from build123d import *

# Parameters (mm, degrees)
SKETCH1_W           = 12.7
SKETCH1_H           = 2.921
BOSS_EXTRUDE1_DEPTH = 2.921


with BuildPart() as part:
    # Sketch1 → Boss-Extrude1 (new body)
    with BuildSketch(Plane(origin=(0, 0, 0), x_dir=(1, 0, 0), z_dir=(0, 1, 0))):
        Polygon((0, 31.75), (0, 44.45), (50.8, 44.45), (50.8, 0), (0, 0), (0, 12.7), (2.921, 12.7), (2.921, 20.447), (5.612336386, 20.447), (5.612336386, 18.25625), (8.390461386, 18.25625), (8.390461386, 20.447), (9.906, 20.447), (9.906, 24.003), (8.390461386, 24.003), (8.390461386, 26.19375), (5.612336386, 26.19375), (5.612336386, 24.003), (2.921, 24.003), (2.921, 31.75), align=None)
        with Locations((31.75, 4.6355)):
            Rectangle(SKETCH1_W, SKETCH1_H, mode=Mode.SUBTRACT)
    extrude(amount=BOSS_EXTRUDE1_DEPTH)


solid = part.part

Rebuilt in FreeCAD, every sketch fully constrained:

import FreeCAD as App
import Part
import Sketcher
Q = App.Units.Quantity

doc = App.newDocument("Part")
body = doc.addObject("PartDesign::Body", "Body")

# Sketch on XZ plane
sketch1 = body.newObject("Sketcher::SketchObject", "Sketch")
sketch1.AttachmentSupport = (doc.getObject("XZ_Plane"), [""])
sketch1.MapMode = "FlatFace"
sketch1.addGeometry(Part.LineSegment(App.Vector(0, -44.5, 0), App.Vector(0, -31.8, 0)), False)
sketch1.addGeometry(Part.LineSegment(App.Vector(0, -31.8, 0), App.Vector(2.9, -31.8, 0)), False)
sketch1.addGeometry(Part.LineSegment(App.Vector(2.9, -31.8, 0), App.Vector(2.9, -24, 0)), False)
sketch1.addGeometry(Part.LineSegment(App.Vector(2.9, -24, 0), App.Vector(5.6, -24, 0)), False)
sketch1.addGeometry(Part.LineSegment(App.Vector(5.6, -24, 0), App.Vector(5.6, -26.2, 0)), False)
sketch1.addGeometry(Part.LineSegment(App.Vector(5.6, -26.2, 0), App.Vector(8.4, -26.2, 0)), False)
sketch1.addGeometry(Part.LineSegment(App.Vector(8.4, -26.2, 0), App.Vector(8.4, -24, 0)), False)
sketch1.addGeometry(Part.LineSegment(App.Vector(8.4, -24, 0), App.Vector(9.9, -24, 0)), False)
sketch1.addGeometry(Part.LineSegment(App.Vector(9.9, -24, 0), App.Vector(9.9, -20.4, 0)), False)
sketch1.addGeometry(Part.LineSegment(App.Vector(9.9, -20.4, 0), App.Vector(8.4, -20.4, 0)), False)
sketch1.addGeometry(Part.LineSegment(App.Vector(8.4, -20.4, 0), App.Vector(8.4, -18.3, 0)), False)
sketch1.addGeometry(Part.LineSegment(App.Vector(8.4, -18.3, 0), App.Vector(5.6, -18.3, 0)), False)
sketch1.addGeometry(Part.LineSegment(App.Vector(5.6, -18.3, 0), App.Vector(5.6, -20.4, 0)), False)
sketch1.addGeometry(Part.LineSegment(App.Vector(5.6, -20.4, 0), App.Vector(2.9, -20.4, 0)), False)
sketch1.addGeometry(Part.LineSegment(App.Vector(2.9, -20.4, 0), App.Vector(2.9, -12.7, 0)), False)
sketch1.addGeometry(Part.LineSegment(App.Vector(2.9, -12.7, 0), App.Vector(0, -12.7, 0)), False)
sketch1.addGeometry(Part.LineSegment(App.Vector(0, -12.7, 0), App.Vector(0, 0, 0)), False)
sketch1.addGeometry(Part.LineSegment(App.Vector(0, 0, 0), App.Vector(50.8, 0, 0)), False)
sketch1.addGeometry(Part.LineSegment(App.Vector(50.8, 0, 0), App.Vector(50.8, -44.5, 0)), False)
sketch1.addGeometry(Part.LineSegment(App.Vector(50.8, -44.5, 0), App.Vector(0, -44.5, 0)), False)
sketch1.addGeometry(Part.LineSegment(App.Vector(25.4, -3.2, 0), App.Vector(25.4, -6.1, 0)), False)
sketch1.addGeometry(Part.LineSegment(App.Vector(25.4, -6.1, 0), App.Vector(38.1, -6.1, 0)), False)
sketch1.addGeometry(Part.LineSegment(App.Vector(38.1, -6.1, 0), App.Vector(38.1, -3.2, 0)), False)
sketch1.addGeometry(Part.LineSegment(App.Vector(38.1, -3.2, 0), App.Vector(25.4, -3.2, 0)), False)
sketch1.addConstraint(Sketcher.Constraint("Coincident", 0, 2, 1, 1))
sketch1.addConstraint(Sketcher.Constraint("Coincident", 1, 2, 2, 1))
sketch1.addConstraint(Sketcher.Constraint("Coincident", 2, 2, 3, 1))
sketch1.addConstraint(Sketcher.Constraint("Coincident", 3, 2, 4, 1))
sketch1.addConstraint(Sketcher.Constraint("Coincident", 4, 2, 5, 1))
sketch1.addConstraint(Sketcher.Constraint("Coincident", 5, 2, 6, 1))
sketch1.addConstraint(Sketcher.Constraint("Coincident", 6, 2, 7, 1))
sketch1.addConstraint(Sketcher.Constraint("Coincident", 7, 2, 8, 1))
sketch1.addConstraint(Sketcher.Constraint("Coincident", 8, 2, 9, 1))
sketch1.addConstraint(Sketcher.Constraint("Coincident", 9, 2, 10, 1))
sketch1.addConstraint(Sketcher.Constraint("Coincident", 10, 2, 11, 1))
sketch1.addConstraint(Sketcher.Constraint("Coincident", 11, 2, 12, 1))
sketch1.addConstraint(Sketcher.Constraint("Coincident", 12, 2, 13, 1))
sketch1.addConstraint(Sketcher.Constraint("Coincident", 13, 2, 14, 1))
sketch1.addConstraint(Sketcher.Constraint("Coincident", 14, 2, 15, 1))
sketch1.addConstraint(Sketcher.Constraint("Coincident", 15, 2, 16, 1))
sketch1.addConstraint(Sketcher.Constraint("Coincident", 16, 2, 17, 1))
sketch1.addConstraint(Sketcher.Constraint("Coincident", 17, 2, 18, 1))
sketch1.addConstraint(Sketcher.Constraint("Coincident", 18, 2, 19, 1))
sketch1.addConstraint(Sketcher.Constraint("Coincident", 19, 2, 0, 1))
sketch1.addConstraint(Sketcher.Constraint("Coincident", 20, 2, 21, 1))
sketch1.addConstraint(Sketcher.Constraint("Coincident", 21, 2, 22, 1))
sketch1.addConstraint(Sketcher.Constraint("Coincident", 22, 2, 23, 1))
sketch1.addConstraint(Sketcher.Constraint("Coincident", 23, 2, 20, 1))
sketch1.addConstraint(Sketcher.Constraint("Vertical", 0))
sketch1.addConstraint(Sketcher.Constraint("Horizontal", 1))
sketch1.addConstraint(Sketcher.Constraint("Vertical", 2))
sketch1.addConstraint(Sketcher.Constraint("Horizontal", 3))
sketch1.addConstraint(Sketcher.Constraint("Vertical", 4))
sketch1.addConstraint(Sketcher.Constraint("Horizontal", 5))
sketch1.addConstraint(Sketcher.Constraint("Vertical", 6))
sketch1.addConstraint(Sketcher.Constraint("Horizontal", 7))
sketch1.addConstraint(Sketcher.Constraint("Vertical", 8))
sketch1.addConstraint(Sketcher.Constraint("Horizontal", 9))
sketch1.addConstraint(Sketcher.Constraint("Vertical", 10))
sketch1.addConstraint(Sketcher.Constraint("Horizontal", 11))
sketch1.addConstraint(Sketcher.Constraint("Vertical", 12))
sketch1.addConstraint(Sketcher.Constraint("Horizontal", 13))
sketch1.addConstraint(Sketcher.Constraint("Vertical", 14))
sketch1.addConstraint(Sketcher.Constraint("Horizontal", 15))
sketch1.addConstraint(Sketcher.Constraint("Vertical", 16))
sketch1.addConstraint(Sketcher.Constraint("Horizontal", 17))
sketch1.addConstraint(Sketcher.Constraint("Vertical", 18))
sketch1.addConstraint(Sketcher.Constraint("Horizontal", 19))
sketch1.addConstraint(Sketcher.Constraint("Vertical", 20))
sketch1.addConstraint(Sketcher.Constraint("Horizontal", 21))
sketch1.addConstraint(Sketcher.Constraint("Vertical", 22))
sketch1.addConstraint(Sketcher.Constraint("Horizontal", 23))
sketch1.addConstraint(Sketcher.Constraint("Coincident", 16, 2, -1, 1))
sketch1.addConstraint(Sketcher.Constraint("PointOnObject", 0, 2, -2))
sketch1.addConstraint(Sketcher.Constraint("Horizontal", 3, 2, 6, 2))
sketch1.addConstraint(Sketcher.Constraint("Horizontal", 9, 2, 12, 2))
sketch1.addConstraint(Sketcher.Constraint("Vertical", 6, 2, 9, 2))
sketch1.addConstraint(Sketcher.Constraint("Vertical", 4, 2, 11, 2))
sketch1.addConstraint(Sketcher.Constraint("Vertical", 2, 2, 13, 2))
sketch1.addConstraint(Sketcher.Constraint("Equal", 23, 0))
sketch1.addConstraint(Sketcher.Constraint("Equal", 6, 10))
sketch1.addConstraint(Sketcher.Constraint("Equal", 2, 14))
sketch1.addConstraint(Sketcher.Constraint("Equal", 0, 16))
sketch1.addConstraint(Sketcher.Constraint("Equal", 15, 20))
sketch1.addConstraint(Sketcher.Constraint("DistanceX", 17, 1, 17, 2, Q("2 in")))
sketch1.addConstraint(Sketcher.Constraint("DistanceX", 21, 1, 21, 2, Q("0.5 in")))
sketch1.addConstraint(Sketcher.Constraint("DistanceX", -1, 1, 20, 2, Q("1 in")))
sketch1.addConstraint(Sketcher.Constraint("DistanceY", 8, 1, 8, 2, Q("0.14 in")))
sketch1.addConstraint(Sketcher.Constraint("DistanceY", 18, 2, 18, 1, Q("1.75 in")))
sketch1.addConstraint(Sketcher.Constraint("DistanceX", 1, 1, 1, 2, Q("0.115 in")))
sketch1.addConstraint(Sketcher.Constraint("DistanceX", 5, 1, 5, 2, Q("0.109375 in")))
sketch1.addConstraint(Sketcher.Constraint("DistanceX", -1, 1, 7, 2, Q("0.39 in")))
sketch1.addConstraint(Sketcher.Constraint("DistanceY", 20, 2, -1, 1, Q("0.24 in")))
sketch1.addConstraint(Sketcher.Constraint("DistanceY", 4, 2, -1, 1, Q("1.03125 in")))
sketch1.addConstraint(Sketcher.Constraint("DistanceX", 7, 1, 7, 2, 1.515539))
pad1 = body.newObject("PartDesign::Pad", "Pad")
pad1.Profile = sketch1
pad1.Length = Q("0.115 in")
pad1.Reversed = True

doc.recompute()
